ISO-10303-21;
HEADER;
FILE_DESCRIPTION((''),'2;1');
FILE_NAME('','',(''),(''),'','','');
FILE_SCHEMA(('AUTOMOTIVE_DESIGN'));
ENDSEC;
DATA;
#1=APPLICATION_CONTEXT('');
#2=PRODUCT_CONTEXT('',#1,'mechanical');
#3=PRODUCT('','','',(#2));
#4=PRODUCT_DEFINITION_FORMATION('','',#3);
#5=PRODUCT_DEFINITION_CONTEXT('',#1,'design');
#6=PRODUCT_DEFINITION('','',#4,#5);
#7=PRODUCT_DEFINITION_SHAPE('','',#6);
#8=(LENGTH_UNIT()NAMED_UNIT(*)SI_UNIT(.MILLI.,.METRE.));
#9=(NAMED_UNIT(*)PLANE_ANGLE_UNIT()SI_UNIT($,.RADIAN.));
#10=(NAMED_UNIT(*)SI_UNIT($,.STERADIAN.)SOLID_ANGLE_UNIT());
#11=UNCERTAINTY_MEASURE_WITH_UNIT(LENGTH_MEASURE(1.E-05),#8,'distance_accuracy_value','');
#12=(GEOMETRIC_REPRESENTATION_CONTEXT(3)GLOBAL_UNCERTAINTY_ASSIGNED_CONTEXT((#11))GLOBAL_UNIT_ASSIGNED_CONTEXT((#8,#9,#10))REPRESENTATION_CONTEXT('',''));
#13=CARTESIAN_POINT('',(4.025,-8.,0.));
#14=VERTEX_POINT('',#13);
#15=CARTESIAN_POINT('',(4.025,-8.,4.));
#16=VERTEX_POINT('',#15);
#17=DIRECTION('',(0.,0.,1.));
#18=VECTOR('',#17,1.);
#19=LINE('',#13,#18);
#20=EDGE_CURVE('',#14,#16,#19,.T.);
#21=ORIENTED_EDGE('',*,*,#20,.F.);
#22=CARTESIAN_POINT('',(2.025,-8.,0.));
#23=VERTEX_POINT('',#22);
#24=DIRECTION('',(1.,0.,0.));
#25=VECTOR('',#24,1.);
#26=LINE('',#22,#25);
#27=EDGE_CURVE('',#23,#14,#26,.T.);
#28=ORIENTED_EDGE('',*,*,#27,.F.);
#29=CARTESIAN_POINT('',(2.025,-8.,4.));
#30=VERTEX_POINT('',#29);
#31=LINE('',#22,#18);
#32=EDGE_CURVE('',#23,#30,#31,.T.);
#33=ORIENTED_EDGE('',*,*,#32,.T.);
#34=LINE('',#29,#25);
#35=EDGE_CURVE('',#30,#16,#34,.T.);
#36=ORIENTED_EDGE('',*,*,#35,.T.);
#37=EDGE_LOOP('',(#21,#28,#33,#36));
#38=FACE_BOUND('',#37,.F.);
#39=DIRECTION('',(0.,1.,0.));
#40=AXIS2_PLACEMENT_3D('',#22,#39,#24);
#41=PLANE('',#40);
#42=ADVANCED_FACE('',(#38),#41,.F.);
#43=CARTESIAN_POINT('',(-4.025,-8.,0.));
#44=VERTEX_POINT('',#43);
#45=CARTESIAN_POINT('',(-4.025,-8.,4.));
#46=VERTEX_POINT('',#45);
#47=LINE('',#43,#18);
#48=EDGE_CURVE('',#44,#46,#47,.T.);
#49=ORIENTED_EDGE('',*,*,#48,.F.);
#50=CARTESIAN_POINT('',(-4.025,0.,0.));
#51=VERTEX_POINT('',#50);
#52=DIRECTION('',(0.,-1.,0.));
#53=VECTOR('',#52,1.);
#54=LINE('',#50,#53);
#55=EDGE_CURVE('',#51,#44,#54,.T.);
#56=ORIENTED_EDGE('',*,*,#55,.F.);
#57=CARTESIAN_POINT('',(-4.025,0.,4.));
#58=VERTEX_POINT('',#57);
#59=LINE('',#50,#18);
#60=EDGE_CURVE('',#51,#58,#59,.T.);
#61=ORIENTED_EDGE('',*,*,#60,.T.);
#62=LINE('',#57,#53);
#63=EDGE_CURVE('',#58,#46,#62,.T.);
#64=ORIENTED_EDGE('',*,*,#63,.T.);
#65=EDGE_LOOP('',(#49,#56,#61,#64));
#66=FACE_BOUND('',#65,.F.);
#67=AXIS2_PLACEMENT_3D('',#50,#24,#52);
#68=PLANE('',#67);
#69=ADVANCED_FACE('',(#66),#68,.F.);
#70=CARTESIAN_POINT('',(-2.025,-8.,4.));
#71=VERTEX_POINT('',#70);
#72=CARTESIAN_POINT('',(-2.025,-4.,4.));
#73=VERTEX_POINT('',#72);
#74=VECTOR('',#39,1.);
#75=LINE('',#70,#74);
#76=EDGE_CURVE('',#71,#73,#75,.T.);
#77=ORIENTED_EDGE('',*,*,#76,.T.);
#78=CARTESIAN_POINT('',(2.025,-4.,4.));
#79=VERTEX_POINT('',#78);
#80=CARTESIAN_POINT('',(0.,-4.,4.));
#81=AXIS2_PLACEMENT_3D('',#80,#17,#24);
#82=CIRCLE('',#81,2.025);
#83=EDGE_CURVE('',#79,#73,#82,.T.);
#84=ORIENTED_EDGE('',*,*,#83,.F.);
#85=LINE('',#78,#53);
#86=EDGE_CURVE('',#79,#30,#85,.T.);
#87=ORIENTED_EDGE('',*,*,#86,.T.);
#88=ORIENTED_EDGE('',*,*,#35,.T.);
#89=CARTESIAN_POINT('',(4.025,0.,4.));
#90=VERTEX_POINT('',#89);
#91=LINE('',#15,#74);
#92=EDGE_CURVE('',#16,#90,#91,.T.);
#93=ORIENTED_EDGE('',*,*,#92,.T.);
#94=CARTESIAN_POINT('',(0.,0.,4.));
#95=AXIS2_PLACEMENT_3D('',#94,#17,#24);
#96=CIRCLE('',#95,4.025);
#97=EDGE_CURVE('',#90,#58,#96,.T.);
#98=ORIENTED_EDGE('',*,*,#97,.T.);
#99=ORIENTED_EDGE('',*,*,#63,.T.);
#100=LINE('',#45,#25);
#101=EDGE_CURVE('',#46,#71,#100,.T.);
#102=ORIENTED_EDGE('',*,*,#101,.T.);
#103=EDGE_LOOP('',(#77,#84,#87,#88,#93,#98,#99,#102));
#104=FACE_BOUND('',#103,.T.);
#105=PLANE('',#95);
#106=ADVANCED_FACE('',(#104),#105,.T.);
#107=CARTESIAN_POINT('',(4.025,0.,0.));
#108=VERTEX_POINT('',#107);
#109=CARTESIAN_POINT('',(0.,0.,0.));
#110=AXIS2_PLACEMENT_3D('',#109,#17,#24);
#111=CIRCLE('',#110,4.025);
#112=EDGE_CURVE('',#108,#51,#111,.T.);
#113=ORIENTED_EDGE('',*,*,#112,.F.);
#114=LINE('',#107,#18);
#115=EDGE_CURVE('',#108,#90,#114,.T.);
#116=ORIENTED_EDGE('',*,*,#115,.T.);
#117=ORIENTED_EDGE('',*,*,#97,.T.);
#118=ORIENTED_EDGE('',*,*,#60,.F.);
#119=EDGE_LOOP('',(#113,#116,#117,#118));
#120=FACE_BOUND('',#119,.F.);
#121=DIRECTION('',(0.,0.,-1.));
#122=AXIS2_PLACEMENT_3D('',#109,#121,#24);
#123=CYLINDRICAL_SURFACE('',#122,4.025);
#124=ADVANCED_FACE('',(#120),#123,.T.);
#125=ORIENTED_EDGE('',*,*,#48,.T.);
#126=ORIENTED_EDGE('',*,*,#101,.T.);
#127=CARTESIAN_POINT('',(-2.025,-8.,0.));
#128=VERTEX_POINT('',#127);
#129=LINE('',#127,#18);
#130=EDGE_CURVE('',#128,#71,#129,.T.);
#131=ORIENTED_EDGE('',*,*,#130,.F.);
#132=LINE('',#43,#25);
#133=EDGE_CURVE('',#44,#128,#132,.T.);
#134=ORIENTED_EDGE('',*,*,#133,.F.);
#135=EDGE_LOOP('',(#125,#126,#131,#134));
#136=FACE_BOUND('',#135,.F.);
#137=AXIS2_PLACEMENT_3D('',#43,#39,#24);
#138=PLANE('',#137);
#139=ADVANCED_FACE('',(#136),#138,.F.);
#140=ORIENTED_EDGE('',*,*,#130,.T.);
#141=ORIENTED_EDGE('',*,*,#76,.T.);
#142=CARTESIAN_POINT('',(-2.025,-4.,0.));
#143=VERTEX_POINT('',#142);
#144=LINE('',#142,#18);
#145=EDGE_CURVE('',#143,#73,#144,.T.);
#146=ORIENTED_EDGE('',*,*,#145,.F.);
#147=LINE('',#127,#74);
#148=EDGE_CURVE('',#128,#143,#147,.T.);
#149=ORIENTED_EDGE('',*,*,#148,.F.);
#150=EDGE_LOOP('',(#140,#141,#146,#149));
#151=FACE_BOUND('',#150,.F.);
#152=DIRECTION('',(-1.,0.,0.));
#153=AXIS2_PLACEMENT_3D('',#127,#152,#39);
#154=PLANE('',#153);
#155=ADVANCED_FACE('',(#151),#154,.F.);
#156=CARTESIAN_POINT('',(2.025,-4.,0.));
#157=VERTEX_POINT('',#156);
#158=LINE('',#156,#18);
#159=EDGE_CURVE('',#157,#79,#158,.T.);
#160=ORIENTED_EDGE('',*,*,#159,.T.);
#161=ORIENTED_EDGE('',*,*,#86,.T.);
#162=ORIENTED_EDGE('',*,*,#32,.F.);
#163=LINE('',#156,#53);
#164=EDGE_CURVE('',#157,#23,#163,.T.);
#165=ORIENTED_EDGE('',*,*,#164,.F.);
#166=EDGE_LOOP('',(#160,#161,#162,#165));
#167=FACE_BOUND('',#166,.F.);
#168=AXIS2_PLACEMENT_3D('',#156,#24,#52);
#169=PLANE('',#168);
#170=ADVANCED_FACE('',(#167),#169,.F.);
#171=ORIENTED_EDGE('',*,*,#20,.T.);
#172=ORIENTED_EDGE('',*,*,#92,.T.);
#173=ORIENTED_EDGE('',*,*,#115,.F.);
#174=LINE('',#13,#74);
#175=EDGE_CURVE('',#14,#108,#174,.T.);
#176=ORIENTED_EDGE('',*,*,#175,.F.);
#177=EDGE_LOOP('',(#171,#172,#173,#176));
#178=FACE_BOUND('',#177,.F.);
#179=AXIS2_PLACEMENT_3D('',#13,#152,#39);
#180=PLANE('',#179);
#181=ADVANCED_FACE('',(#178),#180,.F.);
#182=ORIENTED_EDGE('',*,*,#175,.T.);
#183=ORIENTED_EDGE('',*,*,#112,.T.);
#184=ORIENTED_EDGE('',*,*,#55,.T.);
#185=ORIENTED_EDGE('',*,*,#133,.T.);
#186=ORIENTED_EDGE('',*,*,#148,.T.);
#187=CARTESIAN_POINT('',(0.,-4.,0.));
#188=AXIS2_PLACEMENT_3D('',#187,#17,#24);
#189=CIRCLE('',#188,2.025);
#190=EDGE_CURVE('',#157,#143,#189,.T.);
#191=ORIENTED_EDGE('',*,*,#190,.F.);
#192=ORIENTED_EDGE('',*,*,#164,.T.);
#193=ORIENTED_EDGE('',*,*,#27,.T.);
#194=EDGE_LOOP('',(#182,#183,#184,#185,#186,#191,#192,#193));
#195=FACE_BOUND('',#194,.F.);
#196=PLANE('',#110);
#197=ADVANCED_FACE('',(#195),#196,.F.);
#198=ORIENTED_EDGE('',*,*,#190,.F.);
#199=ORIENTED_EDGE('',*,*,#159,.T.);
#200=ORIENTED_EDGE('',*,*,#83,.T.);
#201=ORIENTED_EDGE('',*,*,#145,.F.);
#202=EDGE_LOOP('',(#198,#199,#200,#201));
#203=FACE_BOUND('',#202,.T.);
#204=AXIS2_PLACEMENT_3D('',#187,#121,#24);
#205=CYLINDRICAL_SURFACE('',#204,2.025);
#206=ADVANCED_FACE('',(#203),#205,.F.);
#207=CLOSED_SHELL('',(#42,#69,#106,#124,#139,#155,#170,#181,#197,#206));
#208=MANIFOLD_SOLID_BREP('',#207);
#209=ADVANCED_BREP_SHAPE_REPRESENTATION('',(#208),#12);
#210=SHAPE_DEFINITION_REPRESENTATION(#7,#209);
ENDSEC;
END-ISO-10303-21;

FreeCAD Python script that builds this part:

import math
import FreeCAD as App
import Part
import Sketcher

V = App.Vector
Q = App.Units.Quantity

doc = App.newDocument("Part")
params = doc.addObject("Spreadsheet::Sheet", "Params")
for row, (alias, value) in enumerate([
    ("sketch1_width", "2 mm"),
    ("sketch1_height", "8 mm"),
    ("sketch1_height2", "4 mm"),
    ("pad1_length", "4 mm"),
], start=1):
    params.set(f"A{row}", alias)
    params.set(f"B{row}", "=" + value)
    params.setAlias(f"B{row}", alias)

body = doc.addObject("PartDesign::Body", "Body")

sketch1 = body.newObject("Sketcher::SketchObject", "Sketch")
sketch1.AttachmentSupport = (doc.getObject("XY_Plane"), [""])
sketch1.MapMode = "FlatFace"
sketch1.addGeometry(Part.ArcOfCircle(Part.Circle(V(0, 0, 0), V(0, 0, 1), 4.025), math.radians(0), math.radians(180)), False)
sketch1.addGeometry(Part.LineSegment(V(-4.025, 0, 0), V(-4.025, -8, 0)), False)
sketch1.addGeometry(Part.LineSegment(V(-4.025, -8, 0), V(-2.025, -8, 0)), False)
sketch1.addGeometry(Part.LineSegment(V(-2.025, -8, 0), V(-2.025, -4, 0)), False)
sketch1.addGeometry(Part.ArcOfCircle(Part.Circle(V(0, -4, 0), V(0, 0, 1), 2.025), math.radians(0), math.radians(180)), False)
sketch1.addGeometry(Part.LineSegment(V(2.025, -4, 0), V(2.025, -8, 0)), False)
sketch1.addGeometry(Part.LineSegment(V(2.025, -8, 0), V(4.025, -8, 0)), False)
sketch1.addGeometry(Part.LineSegment(V(4.025, -8, 0), V(4.025, 0, 0)), False)
sketch1.addConstraint(Sketcher.Constraint("Tangent", 0, 2, 1, 1))
sketch1.addConstraint(Sketcher.Constraint("Coincident", 1, 2, 2, 1))
sketch1.addConstraint(Sketcher.Constraint("Coincident", 2, 2, 3, 1))
sketch1.addConstraint(Sketcher.Constraint("Tangent", 3, 2, 4, 2))
sketch1.addConstraint(Sketcher.Constraint("Tangent", 4, 1, 5, 1))
sketch1.addConstraint(Sketcher.Constraint("Coincident", 5, 2, 6, 1))
sketch1.addConstraint(Sketcher.Constraint("Coincident", 6, 2, 7, 1))
sketch1.addConstraint(Sketcher.Constraint("Tangent", 7, 2, 0, 1))
sketch1.addConstraint(Sketcher.Constraint("Vertical", 1))
sketch1.addConstraint(Sketcher.Constraint("Horizontal", 2))
sketch1.addConstraint(Sketcher.Constraint("Vertical", 3))
sketch1.addConstraint(Sketcher.Constraint("Vertical", 5))
sketch1.addConstraint(Sketcher.Constraint("Horizontal", 6))
sketch1.addConstraint(Sketcher.Constraint("Vertical", 7))
sketch1.addConstraint(Sketcher.Constraint("Coincident", 0, 3, -1, 1))
sketch1.addConstraint(Sketcher.Constraint("Symmetric", 2, 2, 5, 2, -2))
sketch1.addConstraint(Sketcher.Constraint("DistanceX", 2, 1, 2, 2, Q("2 mm")))
sketch1.addConstraint(Sketcher.Constraint("DistanceY", 1, 2, 1, 1, Q("8 mm")))
sketch1.addConstraint(Sketcher.Constraint("DistanceY", 3, 1, 3, 2, Q("4 mm")))
sketch1.addConstraint(Sketcher.Constraint("Radius", 4, Q("2.025 mm")))
sketch1.setExpression("Constraints[16]", "Params.sketch1_width")
sketch1.setExpression("Constraints[17]", "Params.sketch1_height")
sketch1.setExpression("Constraints[18]", "Params.sketch1_height2")
pad1 = body.newObject("PartDesign::Pad", "Pad")
pad1.Profile = sketch1
pad1.setExpression("Length", "Params.pad1_length")

doc.recompute()
